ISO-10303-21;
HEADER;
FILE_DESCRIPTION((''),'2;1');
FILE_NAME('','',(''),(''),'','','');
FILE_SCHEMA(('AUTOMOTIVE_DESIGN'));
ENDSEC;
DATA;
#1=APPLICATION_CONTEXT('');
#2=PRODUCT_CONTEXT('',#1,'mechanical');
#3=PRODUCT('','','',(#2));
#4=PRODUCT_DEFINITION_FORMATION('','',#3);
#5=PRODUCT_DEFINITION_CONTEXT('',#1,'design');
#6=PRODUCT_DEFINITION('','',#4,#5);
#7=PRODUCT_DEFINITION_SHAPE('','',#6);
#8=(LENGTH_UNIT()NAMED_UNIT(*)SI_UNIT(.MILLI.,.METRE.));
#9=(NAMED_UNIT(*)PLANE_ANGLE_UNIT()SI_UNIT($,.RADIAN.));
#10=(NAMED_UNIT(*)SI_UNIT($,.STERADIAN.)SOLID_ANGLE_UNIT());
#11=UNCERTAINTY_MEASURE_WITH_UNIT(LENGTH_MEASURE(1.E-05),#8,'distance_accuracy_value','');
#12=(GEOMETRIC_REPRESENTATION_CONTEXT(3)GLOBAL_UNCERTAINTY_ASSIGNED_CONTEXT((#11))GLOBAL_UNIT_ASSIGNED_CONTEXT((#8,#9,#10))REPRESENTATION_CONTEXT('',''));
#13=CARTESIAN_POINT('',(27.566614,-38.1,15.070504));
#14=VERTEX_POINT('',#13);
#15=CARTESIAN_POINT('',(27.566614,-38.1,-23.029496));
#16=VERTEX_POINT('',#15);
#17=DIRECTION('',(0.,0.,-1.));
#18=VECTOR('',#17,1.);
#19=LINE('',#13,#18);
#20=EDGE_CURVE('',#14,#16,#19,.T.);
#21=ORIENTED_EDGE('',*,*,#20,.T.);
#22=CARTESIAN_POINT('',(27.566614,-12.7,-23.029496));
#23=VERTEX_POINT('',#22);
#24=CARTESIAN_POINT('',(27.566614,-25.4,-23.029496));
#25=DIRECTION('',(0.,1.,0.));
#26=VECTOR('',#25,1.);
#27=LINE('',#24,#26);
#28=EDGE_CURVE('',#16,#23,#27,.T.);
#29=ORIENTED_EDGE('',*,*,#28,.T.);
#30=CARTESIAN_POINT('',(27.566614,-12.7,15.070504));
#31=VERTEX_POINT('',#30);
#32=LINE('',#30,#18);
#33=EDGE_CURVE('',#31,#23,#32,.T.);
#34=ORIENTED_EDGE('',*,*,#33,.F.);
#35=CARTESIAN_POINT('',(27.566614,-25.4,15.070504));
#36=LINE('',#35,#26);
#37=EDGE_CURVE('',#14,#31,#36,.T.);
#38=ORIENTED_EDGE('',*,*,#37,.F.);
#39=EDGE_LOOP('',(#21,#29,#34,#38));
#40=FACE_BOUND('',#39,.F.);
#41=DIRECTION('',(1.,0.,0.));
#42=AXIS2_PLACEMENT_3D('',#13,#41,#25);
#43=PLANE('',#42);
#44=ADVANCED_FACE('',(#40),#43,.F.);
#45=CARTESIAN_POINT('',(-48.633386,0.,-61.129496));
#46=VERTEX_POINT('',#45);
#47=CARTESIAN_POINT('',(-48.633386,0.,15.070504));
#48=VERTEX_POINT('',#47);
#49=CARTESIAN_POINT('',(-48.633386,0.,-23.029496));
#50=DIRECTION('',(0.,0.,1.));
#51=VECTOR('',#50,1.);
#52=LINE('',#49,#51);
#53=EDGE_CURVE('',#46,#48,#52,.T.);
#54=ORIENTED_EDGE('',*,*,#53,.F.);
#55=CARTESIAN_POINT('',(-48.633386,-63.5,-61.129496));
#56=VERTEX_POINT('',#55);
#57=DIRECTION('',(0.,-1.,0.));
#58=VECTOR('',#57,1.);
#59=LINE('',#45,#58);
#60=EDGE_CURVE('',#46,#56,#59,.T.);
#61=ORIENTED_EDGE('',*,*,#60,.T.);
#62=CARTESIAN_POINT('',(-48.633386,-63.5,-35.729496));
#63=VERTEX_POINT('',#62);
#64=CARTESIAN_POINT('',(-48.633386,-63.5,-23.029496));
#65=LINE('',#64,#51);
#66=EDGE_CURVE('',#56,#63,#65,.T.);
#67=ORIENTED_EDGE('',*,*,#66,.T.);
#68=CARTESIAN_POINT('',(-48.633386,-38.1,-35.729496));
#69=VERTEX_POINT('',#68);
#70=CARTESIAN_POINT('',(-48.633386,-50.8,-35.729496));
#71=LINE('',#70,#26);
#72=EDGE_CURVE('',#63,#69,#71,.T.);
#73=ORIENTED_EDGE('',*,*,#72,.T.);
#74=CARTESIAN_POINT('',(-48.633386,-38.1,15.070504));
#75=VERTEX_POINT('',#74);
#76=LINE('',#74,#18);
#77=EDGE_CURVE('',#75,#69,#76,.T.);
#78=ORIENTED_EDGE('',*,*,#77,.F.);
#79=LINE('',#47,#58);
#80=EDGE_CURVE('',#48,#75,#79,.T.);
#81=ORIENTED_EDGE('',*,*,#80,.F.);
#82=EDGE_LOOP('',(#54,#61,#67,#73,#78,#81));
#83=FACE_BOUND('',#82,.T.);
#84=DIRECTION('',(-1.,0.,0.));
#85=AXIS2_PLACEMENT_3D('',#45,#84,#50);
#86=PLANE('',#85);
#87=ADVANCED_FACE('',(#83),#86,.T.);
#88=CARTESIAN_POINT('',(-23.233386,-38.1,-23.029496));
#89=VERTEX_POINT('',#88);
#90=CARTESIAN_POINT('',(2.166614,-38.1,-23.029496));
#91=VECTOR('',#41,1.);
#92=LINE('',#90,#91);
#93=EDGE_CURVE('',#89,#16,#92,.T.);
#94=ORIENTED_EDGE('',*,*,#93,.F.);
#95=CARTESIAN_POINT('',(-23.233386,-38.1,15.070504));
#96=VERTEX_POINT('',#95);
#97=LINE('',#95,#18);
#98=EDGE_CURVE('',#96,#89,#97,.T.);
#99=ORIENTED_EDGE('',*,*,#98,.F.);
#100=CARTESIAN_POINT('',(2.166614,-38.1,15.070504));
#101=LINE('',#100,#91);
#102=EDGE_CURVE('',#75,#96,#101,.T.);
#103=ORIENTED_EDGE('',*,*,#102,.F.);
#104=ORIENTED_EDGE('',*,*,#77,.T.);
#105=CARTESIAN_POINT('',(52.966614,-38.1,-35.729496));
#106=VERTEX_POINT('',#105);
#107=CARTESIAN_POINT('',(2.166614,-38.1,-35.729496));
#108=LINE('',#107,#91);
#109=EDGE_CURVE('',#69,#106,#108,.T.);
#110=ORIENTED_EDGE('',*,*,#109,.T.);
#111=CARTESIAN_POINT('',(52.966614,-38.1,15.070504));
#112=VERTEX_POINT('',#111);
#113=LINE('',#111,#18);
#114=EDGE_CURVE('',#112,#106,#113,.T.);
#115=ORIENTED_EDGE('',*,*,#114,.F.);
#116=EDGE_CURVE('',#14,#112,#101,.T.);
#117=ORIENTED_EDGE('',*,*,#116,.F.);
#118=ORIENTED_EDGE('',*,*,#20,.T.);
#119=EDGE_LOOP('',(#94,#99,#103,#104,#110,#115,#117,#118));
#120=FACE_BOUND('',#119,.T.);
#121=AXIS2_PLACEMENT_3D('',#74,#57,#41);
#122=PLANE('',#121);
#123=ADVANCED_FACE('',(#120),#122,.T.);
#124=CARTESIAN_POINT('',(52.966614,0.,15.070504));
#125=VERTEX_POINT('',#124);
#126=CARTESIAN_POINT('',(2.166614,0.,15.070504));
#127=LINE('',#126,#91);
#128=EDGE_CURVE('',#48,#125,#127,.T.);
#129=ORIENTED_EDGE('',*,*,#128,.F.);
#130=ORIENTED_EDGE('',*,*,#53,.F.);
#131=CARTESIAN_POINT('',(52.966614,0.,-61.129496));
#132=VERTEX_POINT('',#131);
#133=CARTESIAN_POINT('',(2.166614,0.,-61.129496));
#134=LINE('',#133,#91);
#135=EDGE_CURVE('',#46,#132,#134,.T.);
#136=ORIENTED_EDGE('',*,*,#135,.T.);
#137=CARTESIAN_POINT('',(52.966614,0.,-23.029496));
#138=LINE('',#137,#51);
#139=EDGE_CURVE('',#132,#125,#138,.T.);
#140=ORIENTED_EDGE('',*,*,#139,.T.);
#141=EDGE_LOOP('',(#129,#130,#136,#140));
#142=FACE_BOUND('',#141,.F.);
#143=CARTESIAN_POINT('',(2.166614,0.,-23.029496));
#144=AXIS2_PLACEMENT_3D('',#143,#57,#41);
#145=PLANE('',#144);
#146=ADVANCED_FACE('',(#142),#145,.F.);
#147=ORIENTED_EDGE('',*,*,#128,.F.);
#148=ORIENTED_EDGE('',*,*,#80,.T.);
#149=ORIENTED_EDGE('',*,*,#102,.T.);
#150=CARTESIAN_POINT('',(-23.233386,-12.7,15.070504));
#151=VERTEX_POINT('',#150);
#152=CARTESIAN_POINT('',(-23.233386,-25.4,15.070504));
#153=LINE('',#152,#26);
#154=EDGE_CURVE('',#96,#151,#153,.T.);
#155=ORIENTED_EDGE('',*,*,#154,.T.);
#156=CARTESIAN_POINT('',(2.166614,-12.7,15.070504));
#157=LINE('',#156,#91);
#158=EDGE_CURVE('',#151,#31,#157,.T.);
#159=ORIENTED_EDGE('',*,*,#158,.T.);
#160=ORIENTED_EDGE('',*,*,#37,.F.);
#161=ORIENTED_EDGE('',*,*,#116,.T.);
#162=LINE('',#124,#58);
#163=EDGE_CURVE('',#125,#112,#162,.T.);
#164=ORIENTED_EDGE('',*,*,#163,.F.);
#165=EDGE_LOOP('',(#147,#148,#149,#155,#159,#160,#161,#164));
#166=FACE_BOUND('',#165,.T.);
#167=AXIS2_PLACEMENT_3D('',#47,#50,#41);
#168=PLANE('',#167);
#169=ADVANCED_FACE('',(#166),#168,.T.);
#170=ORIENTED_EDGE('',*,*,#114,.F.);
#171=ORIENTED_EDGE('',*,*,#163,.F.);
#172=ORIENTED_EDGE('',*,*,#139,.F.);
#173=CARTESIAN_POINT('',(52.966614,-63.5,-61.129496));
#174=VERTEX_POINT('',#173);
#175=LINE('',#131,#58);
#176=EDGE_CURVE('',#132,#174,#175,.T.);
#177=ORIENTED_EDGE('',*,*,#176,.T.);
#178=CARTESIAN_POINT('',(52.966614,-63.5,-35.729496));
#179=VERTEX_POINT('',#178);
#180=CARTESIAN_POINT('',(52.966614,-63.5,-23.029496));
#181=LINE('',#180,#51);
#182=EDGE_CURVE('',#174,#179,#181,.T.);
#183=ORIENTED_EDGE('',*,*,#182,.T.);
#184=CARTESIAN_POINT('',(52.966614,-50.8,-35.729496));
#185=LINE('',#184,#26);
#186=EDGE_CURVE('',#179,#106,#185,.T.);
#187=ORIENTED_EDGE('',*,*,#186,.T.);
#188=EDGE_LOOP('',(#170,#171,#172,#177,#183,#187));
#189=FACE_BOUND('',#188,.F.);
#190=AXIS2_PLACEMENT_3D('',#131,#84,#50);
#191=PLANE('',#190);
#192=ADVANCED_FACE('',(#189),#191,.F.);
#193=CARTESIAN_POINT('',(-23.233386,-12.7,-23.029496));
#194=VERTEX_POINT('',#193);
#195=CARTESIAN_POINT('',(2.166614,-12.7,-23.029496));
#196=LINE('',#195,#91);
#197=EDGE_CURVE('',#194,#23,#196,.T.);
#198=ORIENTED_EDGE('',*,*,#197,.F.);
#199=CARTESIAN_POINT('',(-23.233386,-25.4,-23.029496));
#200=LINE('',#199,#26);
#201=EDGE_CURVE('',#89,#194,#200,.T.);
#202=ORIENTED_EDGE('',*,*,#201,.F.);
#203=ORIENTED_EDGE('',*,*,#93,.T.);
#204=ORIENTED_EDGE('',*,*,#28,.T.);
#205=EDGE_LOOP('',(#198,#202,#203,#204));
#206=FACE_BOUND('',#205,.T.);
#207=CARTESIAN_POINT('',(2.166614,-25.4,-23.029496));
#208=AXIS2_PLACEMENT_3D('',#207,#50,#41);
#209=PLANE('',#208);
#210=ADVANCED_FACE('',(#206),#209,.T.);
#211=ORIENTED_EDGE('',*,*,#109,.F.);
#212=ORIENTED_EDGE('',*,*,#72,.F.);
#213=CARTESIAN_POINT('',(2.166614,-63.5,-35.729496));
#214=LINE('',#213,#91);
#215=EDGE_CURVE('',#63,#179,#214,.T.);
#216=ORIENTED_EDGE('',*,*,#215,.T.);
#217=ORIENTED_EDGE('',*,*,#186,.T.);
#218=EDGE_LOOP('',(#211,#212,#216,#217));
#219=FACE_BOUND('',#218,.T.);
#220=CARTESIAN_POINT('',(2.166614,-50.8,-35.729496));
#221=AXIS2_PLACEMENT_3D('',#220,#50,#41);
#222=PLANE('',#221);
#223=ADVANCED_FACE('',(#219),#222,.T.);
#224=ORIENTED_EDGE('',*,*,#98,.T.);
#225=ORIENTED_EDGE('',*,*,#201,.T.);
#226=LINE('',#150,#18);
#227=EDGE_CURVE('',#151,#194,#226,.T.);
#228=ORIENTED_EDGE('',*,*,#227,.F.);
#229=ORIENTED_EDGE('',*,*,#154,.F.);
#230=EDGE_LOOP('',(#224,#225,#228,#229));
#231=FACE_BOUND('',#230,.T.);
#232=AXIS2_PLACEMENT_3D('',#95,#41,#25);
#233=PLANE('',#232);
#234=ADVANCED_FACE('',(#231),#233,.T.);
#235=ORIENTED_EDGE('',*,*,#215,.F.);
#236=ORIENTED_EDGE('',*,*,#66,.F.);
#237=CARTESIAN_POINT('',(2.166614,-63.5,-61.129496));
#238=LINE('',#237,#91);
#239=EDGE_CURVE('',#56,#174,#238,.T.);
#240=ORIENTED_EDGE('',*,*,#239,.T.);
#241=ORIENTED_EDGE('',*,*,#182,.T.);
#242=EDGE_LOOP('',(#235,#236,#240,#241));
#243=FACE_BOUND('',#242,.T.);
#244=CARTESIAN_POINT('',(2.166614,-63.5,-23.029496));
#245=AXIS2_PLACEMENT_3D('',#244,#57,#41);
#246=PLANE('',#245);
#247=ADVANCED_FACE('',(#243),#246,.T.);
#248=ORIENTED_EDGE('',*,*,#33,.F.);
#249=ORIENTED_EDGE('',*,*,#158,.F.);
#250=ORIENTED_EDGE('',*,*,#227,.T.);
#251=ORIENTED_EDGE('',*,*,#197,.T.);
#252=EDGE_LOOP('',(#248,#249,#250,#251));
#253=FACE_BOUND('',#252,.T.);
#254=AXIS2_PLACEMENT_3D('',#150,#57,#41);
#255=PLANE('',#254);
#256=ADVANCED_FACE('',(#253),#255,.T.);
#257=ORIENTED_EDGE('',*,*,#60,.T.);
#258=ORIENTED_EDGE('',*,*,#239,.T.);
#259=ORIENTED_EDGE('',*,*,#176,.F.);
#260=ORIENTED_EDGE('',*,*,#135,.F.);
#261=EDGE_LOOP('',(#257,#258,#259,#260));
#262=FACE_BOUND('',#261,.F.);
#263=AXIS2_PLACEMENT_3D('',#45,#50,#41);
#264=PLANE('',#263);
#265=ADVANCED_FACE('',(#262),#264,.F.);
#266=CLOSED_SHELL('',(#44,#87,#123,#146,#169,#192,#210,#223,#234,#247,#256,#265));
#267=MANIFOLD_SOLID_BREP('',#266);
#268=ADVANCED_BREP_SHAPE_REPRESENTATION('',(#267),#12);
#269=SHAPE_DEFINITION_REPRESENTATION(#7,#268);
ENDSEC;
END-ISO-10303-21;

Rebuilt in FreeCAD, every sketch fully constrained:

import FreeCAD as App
import Part
import Sketcher
from FreeCAD import Vector
Q = App.Units.Quantity


def add_polygon(sketch, points):
    """Adds a closed chain of lines whose ends are joined by coincident constraints."""
    first, n = sketch.GeometryCount, len(points)
    for a, b in zip(points, points[1:] + points[:1]):
        sketch.addGeometry(Part.LineSegment(App.Vector(*a, 0), App.Vector(*b, 0)), False)
    for i in range(n):
        sketch.addConstraint(Sketcher.Constraint("Coincident", first + i, 2, first + (i + 1) % n, 1))

doc = App.newDocument("Part")
params = doc.addObject("Spreadsheet::Sheet", "Params")
for row, (alias, value) in enumerate([
    ("sketch1_width", "4 in"),
    ("sketch1_height", "3 in"),
    ("pad1_length", "2.5 in"),
    ("sketch2_width", "4 in"),
    ("sketch2_height", "1 in"),
    ("pocket1_length", "2 in"),
    ("sketch3_width", "2 in"),
    ("sketch3_height", "1 in"),
    ("pocket2_length", "1.5 in"),
], start=1):
    params.set(f"A{row}", alias)
    params.set(f"B{row}", "=" + value)
    params.setAlias(f"B{row}", alias)

body = doc.addObject("PartDesign::Body", "Body")

sketch1 = body.newObject("Sketcher::SketchObject", "Sketch")
sketch1.AttachmentSupport = (doc.getObject("XZ_Plane"), [""])
sketch1.MapMode = "FlatFace"
add_polygon(sketch1, [(-49, 15), (-49, -61), (53, -61), (53, 15)])
sketch1.addConstraint([
    Sketcher.Constraint("Vertical", 0),
    Sketcher.Constraint("Horizontal", 1),
    Sketcher.Constraint("Vertical", 2),
    Sketcher.Constraint("Horizontal", 3),
    Sketcher.Constraint("DistanceX", 1, 1, 1, 2, Q("4 in")),
    Sketcher.Constraint("DistanceY", 0, 2, 0, 1, Q("3 in")),
    Sketcher.Constraint("DistanceX", 0, 2, -1, 1, 48.633386),
    Sketcher.Constraint("DistanceY", 0, 2, -1, 1, 61.129496),
])
sketch1.setExpression("Constraints[8]", "Params.sketch1_width")
sketch1.setExpression("Constraints[9]", "Params.sketch1_height")
pad1 = body.newObject("PartDesign::Pad", "Pad")
pad1.Profile = sketch1
pad1.setExpression("Length", "Params.pad1_length")

sketch2 = body.newObject("Sketcher::SketchObject", "Sketch001")
sketch2.AttachmentSupport = (doc.getObject("XY_Plane"), [""])
sketch2.MapMode = "FlatFace"
sketch2.AttachmentOffset = App.Placement(Vector(0, 0, 15.070504), App.Rotation())
add_polygon(sketch2, [(-49, -38), (-49, -64), (53, -64), (53, -38)])
sketch2.addConstraint([
    Sketcher.Constraint("Vertical", 0),
    Sketcher.Constraint("Horizontal", 1),
    Sketcher.Constraint("Vertical", 2),
    Sketcher.Constraint("Horizontal", 3),
    Sketcher.Constraint("DistanceX", 1, 1, 1, 2, Q("4 in")),
    Sketcher.Constraint("DistanceY", 0, 2, 0, 1, Q("1 in")),
    Sketcher.Constraint("DistanceY", 0, 2, -1, 1, Q("2.5 in")),
    Sketcher.Constraint("DistanceX", 0, 2, -1, 1, 48.633386),
])
sketch2.setExpression("Constraints[8]", "Params.sketch2_width")
sketch2.setExpression("Constraints[9]", "Params.sketch2_height")
pocket1 = body.newObject("PartDesign::Pocket", "Pocket")
pocket1.Profile = sketch2
pocket1.setExpression("Length", "Params.pocket1_length")

sketch3 = body.newObject("Sketcher::SketchObject", "Sketch002")
sketch3.AttachmentSupport = (doc.getObject("XY_Plane"), [""])
sketch3.MapMode = "FlatFace"
sketch3.AttachmentOffset = App.Placement(Vector(0, 0, 15.070504), App.Rotation())
add_polygon(sketch3, [(-23, -13), (-23, -38), (28, -38), (28, -13)])
sketch3.addConstraint([
    Sketcher.Constraint("Vertical", 0),
    Sketcher.Constraint("Horizontal", 1),
    Sketcher.Constraint("Vertical", 2),
    Sketcher.Constraint("Horizontal", 3),
    Sketcher.Constraint("DistanceX", 1, 1, 1, 2, Q("2 in")),
    Sketcher.Constraint("DistanceY", 0, 2, 0, 1, Q("1 in")),
    Sketcher.Constraint("DistanceY", 0, 2, -1, 1, Q("1.5 in")),
    Sketcher.Constraint("DistanceX", 0, 2, -1, 1, 23.233386),
])
sketch3.setExpression("Constraints[8]", "Params.sketch3_width")
sketch3.setExpression("Constraints[9]", "Params.sketch3_height")
pocket2 = body.newObject("PartDesign::Pocket", "Pocket001")
pocket2.Profile = sketch3
pocket2.setExpression("Length", "Params.pocket2_length")

doc.recompute()
